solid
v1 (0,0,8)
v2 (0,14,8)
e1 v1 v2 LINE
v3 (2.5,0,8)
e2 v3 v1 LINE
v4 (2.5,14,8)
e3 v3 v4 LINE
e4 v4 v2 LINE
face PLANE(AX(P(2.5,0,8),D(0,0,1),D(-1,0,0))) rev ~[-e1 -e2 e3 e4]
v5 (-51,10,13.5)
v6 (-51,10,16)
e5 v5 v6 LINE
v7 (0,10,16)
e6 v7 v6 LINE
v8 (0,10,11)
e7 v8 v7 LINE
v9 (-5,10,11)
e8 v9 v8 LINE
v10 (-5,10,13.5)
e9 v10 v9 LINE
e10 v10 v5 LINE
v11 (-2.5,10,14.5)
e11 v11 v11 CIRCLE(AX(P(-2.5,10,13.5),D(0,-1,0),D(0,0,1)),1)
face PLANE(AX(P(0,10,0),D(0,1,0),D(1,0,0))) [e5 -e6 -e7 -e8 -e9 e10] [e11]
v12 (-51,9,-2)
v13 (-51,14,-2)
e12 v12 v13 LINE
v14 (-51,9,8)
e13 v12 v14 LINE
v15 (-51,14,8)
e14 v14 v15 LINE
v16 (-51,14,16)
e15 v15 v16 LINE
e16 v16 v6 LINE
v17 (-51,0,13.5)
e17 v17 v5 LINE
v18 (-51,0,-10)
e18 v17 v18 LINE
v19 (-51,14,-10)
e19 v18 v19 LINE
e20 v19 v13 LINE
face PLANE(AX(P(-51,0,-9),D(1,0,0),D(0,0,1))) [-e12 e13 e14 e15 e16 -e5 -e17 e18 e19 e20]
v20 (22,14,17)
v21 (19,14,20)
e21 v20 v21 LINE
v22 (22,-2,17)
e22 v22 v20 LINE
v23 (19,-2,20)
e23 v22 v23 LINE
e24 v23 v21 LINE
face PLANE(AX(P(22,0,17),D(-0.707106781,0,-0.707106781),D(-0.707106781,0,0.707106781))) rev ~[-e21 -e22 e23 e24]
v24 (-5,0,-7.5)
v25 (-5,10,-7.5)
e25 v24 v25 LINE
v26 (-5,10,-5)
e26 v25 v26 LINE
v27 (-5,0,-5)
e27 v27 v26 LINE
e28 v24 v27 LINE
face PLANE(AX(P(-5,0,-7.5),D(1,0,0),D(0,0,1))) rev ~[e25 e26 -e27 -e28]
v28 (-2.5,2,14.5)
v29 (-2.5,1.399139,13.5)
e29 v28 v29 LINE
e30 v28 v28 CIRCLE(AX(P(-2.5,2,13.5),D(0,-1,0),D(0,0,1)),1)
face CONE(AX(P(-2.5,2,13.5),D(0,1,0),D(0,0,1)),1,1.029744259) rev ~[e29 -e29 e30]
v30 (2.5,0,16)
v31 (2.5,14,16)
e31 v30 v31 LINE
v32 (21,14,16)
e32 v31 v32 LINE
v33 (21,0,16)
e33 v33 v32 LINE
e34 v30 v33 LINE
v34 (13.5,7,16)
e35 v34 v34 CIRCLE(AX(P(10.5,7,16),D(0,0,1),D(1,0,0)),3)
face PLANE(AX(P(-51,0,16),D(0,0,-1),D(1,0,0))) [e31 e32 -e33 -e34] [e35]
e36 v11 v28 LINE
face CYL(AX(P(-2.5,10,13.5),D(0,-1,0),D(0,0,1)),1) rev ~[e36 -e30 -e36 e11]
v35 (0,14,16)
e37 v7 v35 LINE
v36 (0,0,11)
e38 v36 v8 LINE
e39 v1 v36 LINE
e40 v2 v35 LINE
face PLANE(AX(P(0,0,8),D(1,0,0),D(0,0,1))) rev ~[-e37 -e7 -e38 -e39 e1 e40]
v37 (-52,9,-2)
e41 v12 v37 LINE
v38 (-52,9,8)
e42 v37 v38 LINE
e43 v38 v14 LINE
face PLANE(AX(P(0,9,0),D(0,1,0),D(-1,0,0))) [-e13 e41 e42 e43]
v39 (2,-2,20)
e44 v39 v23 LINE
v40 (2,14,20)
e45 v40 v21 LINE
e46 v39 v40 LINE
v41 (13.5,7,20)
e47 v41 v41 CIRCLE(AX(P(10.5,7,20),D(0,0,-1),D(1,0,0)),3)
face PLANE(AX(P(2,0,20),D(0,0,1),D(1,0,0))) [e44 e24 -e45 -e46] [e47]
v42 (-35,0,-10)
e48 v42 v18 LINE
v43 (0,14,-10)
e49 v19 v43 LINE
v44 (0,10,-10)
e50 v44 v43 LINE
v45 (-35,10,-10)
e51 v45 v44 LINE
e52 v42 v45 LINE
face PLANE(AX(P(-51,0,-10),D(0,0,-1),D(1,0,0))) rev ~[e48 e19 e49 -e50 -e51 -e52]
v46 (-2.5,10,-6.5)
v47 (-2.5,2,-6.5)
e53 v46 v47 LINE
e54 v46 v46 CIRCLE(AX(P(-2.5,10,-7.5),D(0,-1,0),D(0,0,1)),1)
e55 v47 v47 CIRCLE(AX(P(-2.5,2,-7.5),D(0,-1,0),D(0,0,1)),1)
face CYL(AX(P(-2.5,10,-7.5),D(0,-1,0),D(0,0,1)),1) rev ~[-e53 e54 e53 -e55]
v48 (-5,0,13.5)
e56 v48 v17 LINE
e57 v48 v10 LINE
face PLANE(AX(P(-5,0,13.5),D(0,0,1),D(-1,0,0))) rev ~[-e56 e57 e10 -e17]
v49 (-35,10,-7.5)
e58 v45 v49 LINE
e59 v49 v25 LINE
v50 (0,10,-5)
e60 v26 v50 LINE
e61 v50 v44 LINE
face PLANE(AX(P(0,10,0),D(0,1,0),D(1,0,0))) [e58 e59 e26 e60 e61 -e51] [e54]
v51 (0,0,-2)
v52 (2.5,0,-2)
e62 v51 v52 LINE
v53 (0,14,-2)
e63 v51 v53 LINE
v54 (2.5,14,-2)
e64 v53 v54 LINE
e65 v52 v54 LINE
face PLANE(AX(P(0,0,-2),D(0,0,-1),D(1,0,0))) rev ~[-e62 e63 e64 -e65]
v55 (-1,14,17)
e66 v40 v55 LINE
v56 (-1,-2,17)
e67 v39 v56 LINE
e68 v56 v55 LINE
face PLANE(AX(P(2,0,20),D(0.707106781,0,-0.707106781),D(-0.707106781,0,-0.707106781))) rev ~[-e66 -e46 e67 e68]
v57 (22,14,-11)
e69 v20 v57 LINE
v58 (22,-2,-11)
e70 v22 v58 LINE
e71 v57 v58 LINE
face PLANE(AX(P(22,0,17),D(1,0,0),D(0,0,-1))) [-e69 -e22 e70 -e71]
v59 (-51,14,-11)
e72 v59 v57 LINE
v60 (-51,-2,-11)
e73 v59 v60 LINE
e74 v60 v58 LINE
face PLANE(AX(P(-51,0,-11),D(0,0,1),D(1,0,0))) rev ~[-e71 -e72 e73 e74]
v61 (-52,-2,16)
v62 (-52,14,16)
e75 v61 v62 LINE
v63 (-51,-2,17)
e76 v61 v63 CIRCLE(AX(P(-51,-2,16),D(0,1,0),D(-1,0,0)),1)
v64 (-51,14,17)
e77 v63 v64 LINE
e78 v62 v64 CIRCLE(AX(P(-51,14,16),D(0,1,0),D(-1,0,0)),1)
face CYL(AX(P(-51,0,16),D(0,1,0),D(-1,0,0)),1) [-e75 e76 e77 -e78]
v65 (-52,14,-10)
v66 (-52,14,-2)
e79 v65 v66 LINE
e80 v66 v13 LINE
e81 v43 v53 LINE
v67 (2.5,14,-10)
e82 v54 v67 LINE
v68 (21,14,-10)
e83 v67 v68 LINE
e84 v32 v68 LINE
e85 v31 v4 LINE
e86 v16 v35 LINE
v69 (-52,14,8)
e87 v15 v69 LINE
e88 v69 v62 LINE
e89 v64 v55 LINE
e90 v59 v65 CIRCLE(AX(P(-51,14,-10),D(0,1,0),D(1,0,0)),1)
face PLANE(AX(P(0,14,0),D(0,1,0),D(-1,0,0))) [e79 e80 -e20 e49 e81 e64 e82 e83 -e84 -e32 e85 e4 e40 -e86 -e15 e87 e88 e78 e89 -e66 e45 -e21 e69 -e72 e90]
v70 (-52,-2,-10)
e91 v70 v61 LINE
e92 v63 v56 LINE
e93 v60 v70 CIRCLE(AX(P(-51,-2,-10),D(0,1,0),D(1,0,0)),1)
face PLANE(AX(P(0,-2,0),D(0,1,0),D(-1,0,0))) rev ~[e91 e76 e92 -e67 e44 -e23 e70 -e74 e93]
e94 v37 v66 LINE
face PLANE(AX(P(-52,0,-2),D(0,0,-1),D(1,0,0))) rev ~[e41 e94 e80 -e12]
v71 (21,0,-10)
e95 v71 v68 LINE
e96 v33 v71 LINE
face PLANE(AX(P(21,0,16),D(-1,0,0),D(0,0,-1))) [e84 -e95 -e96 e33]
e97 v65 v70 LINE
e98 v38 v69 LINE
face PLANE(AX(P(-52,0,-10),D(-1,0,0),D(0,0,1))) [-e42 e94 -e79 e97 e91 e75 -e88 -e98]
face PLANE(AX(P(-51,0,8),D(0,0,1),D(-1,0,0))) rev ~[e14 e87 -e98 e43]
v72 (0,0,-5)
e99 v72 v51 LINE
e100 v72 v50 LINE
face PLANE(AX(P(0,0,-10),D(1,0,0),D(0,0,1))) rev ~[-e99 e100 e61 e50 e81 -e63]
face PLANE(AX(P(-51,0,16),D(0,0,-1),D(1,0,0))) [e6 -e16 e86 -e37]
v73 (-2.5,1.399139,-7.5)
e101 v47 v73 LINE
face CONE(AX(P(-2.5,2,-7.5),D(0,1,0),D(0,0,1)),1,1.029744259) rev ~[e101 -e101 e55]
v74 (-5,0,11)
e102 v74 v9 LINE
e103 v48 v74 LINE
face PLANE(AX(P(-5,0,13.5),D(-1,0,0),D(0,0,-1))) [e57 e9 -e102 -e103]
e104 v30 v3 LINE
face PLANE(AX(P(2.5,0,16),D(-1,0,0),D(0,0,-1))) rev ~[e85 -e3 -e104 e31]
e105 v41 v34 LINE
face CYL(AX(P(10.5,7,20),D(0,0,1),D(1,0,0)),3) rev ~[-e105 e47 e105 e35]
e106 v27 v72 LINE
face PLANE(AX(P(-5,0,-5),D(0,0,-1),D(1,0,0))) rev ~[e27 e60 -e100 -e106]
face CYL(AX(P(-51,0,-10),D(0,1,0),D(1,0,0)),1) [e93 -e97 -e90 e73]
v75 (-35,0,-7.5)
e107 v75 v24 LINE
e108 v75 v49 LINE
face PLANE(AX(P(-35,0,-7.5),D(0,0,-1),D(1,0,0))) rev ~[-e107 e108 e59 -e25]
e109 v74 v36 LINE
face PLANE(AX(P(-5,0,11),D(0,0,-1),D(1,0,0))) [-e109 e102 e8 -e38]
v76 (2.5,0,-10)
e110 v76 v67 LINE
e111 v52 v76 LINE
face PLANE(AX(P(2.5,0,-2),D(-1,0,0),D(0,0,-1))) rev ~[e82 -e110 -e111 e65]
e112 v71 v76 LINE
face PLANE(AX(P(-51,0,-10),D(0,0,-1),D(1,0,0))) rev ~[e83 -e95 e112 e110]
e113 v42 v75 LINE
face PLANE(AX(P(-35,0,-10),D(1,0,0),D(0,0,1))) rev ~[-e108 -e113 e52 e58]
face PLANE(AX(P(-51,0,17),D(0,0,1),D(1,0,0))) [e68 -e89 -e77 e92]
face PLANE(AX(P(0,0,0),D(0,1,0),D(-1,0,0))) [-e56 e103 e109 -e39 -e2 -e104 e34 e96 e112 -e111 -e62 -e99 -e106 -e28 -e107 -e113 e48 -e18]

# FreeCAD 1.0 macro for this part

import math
import FreeCAD as App
import Part
import Sketcher

doc = App.newDocument("Part")
body = doc.addObject("PartDesign::Body", "Body")

# Sketch on XZ plane
sketch1 = doc.addObject("Sketcher::SketchObject", "Sketch")
body.addObject(sketch1)
sketch1.AttachmentSupport = (doc.XZ_Plane, [""])
sketch1.MapMode = "FlatFace"
sketch1.addGeometry([
    Part.LineSegment(App.Vector(-52, -10, 0), App.Vector(-52, 16, 0)),  # 0
    Part.ArcOfCircle(Part.Circle(App.Vector(-51, 16, 0), App.Vector(0, 0, 1), 1), math.radians(90), math.radians(180)),  # 1
    Part.LineSegment(App.Vector(-51, 17, 0), App.Vector(-1, 17, 0)),  # 2
    Part.LineSegment(App.Vector(-1, 17, 0), App.Vector(2, 20, 0)),  # 3
    Part.LineSegment(App.Vector(2, 20, 0), App.Vector(19, 20, 0)),  # 4
    Part.LineSegment(App.Vector(19, 20, 0), App.Vector(22, 17, 0)),  # 5
    Part.LineSegment(App.Vector(22, 17, 0), App.Vector(22, -11, 0)),  # 6
    Part.LineSegment(App.Vector(22, -11, 0), App.Vector(-51, -11, 0)),  # 7
    Part.ArcOfCircle(Part.Circle(App.Vector(-51, -10, 0), App.Vector(0, 0, 1), 1), math.radians(180), math.radians(270)),  # 8
], False)
sketch1.addConstraint([
    Sketcher.Constraint("Tangent", 0, 2, 1, 2),
    Sketcher.Constraint("Tangent", 1, 1, 2, 1),
    Sketcher.Constraint("Coincident", 2, 2, 3, 1),
    Sketcher.Constraint("Coincident", 3, 2, 4, 1),
    Sketcher.Constraint("Coincident", 4, 2, 5, 1),
    Sketcher.Constraint("Coincident", 5, 2, 6, 1),
    Sketcher.Constraint("Coincident", 6, 2, 7, 1),
    Sketcher.Constraint("Tangent", 7, 2, 8, 2),
    Sketcher.Constraint("Tangent", 8, 1, 0, 1),
    Sketcher.Constraint("Vertical", 0),
    Sketcher.Constraint("Horizontal", 2),
    Sketcher.Constraint("Horizontal", 4),
    Sketcher.Constraint("Vertical", 6),
    Sketcher.Constraint("Horizontal", 7),
    Sketcher.Constraint("Equal", 1, 8),
    Sketcher.Constraint("Perpendicular", 3, 5),
    Sketcher.Constraint("Horizontal", 2, 2, 5, 2),
    Sketcher.Constraint("Equal", 3, 5),
    Sketcher.Constraint("Radius", 1, 1.0),
    Sketcher.Constraint("DistanceX", 2, 1, 2, 2, 50.0),
    Sketcher.Constraint("DistanceX", 4, 1, 4, 2, 17.0),
    Sketcher.Constraint("DistanceX", 7, 2, 7, 1, 73.0),
    Sketcher.Constraint("DistanceY", 0, 1, 0, 2, 26.0),
    Sketcher.Constraint("DistanceX", 1, 3, -1, 1, 51.0),
    Sketcher.Constraint("DistanceY", -1, 1, 1, 3, 16.0),
])
pad1 = doc.addObject("PartDesign::Pad", "Pad")
body.addObject(pad1)
pad1.Profile = sketch1
pad1.Length = 2

# Sketch on XZ plane
sketch2 = doc.addObject("Sketcher::SketchObject", "Sketch001")
body.addObject(sketch2)
sketch2.AttachmentSupport = (doc.XZ_Plane, [""])
sketch2.MapMode = "FlatFace"
sketch2.addGeometry([
    Part.LineSegment(App.Vector(-52, -10, 0), App.Vector(-52, 16, 0)),  # 0
    Part.ArcOfCircle(Part.Circle(App.Vector(-51, 16, 0), App.Vector(0, 0, 1), 1), math.radians(90), math.radians(180)),  # 1
    Part.LineSegment(App.Vector(-51, 17, 0), App.Vector(-1, 17, 0)),  # 2
    Part.LineSegment(App.Vector(-1, 17, 0), App.Vector(2, 20, 0)),  # 3
    Part.LineSegment(App.Vector(2, 20, 0), App.Vector(19, 20, 0)),  # 4
    Part.LineSegment(App.Vector(19, 20, 0), App.Vector(22, 17, 0)),  # 5
    Part.LineSegment(App.Vector(22, 17, 0), App.Vector(22, -11, 0)),  # 6
    Part.LineSegment(App.Vector(22, -11, 0), App.Vector(-51, -11, 0)),  # 7
    Part.ArcOfCircle(Part.Circle(App.Vector(-51, -10, 0), App.Vector(0, 0, 1), 1), math.radians(180), math.radians(270)),  # 8
    Part.LineSegment(App.Vector(-51, -10, 0), App.Vector(21, -10, 0)),  # 9
    Part.LineSegment(App.Vector(21, -10, 0), App.Vector(21, 16, 0)),  # 10
    Part.LineSegment(App.Vector(21, 16, 0), App.Vector(-51, 16, 0)),  # 11
    Part.LineSegment(App.Vector(-51, 16, 0), App.Vector(-51, -10, 0)),  # 12
], False)
sketch2.addConstraint([
    Sketcher.Constraint("Tangent", 0, 2, 1, 2),
    Sketcher.Constraint("Tangent", 1, 1, 2, 1),
    Sketcher.Constraint("Coincident", 2, 2, 3, 1),
    Sketcher.Constraint("Coincident", 3, 2, 4, 1),
    Sketcher.Constraint("Coincident", 4, 2, 5, 1),
    Sketcher.Constraint("Coincident", 5, 2, 6, 1),
    Sketcher.Constraint("Coincident", 6, 2, 7, 1),
    Sketcher.Constraint("Tangent", 7, 2, 8, 2),
    Sketcher.Constraint("Tangent", 8, 1, 0, 1),
    Sketcher.Constraint("Coincident", 9, 2, 10, 1),
    Sketcher.Constraint("Coincident", 10, 2, 11, 1),
    Sketcher.Constraint("Coincident", 11, 2, 12, 1),
    Sketcher.Constraint("Coincident", 12, 2, 9, 1),
    Sketcher.Constraint("Vertical", 0),
    Sketcher.Constraint("Horizontal", 2),
    Sketcher.Constraint("Horizontal", 4),
    Sketcher.Constraint("Vertical", 6),
    Sketcher.Constraint("Horizontal", 7),
    Sketcher.Constraint("Horizontal", 9),
    Sketcher.Constraint("Vertical", 10),
    Sketcher.Constraint("Horizontal", 11),
    Sketcher.Constraint("Vertical", 12),
    Sketcher.Constraint("Coincident", 11, 2, 1, 3),
    Sketcher.Constraint("Coincident", 12, 2, 8, 3),
    Sketcher.Constraint("Perpendicular", 3, 5),
    Sketcher.Constraint("Horizontal", 2, 2, 5, 2),
    Sketcher.Constraint("Equal", 3, 5),
    Sketcher.Constraint("Radius", 1, 1.0),
    Sketcher.Constraint("DistanceX", 2, 1, 2, 2, 50.0),
    Sketcher.Constraint("DistanceX", 4, 1, 4, 2, 17.0),
    Sketcher.Constraint("DistanceX", 7, 2, 7, 1, 73.0),
    Sketcher.Constraint("DistanceX", 9, 1, 9, 2, 72.0),
    Sketcher.Constraint("DistanceY", 0, 1, 0, 2, 26.0),
    Sketcher.Constraint("DistanceX", 1, 3, -1, 1, 51.0),
    Sketcher.Constraint("DistanceY", -1, 1, 1, 3, 16.0),
])
pad2 = doc.addObject("PartDesign::Pad", "Pad001")
body.addObject(pad2)
pad2.Profile = sketch2
pad2.Length = 9
pad2.Reversed = True

# Sketch on XZ plane
sketch3 = doc.addObject("Sketcher::SketchObject", "Sketch002")
body.addObject(sketch3)
sketch3.AttachmentSupport = (doc.XZ_Plane, [""])
sketch3.MapMode = "FlatFace"
sketch3.addGeometry([
    Part.LineSegment(App.Vector(-51, -2, 0), App.Vector(-51, -10, 0)),  # 0
    Part.LineSegment(App.Vector(-51, -10, 0), App.Vector(21, -10, 0)),  # 1
    Part.LineSegment(App.Vector(21, -10, 0), App.Vector(21, 16, 0)),  # 2
    Part.LineSegment(App.Vector(21, 16, 0), App.Vector(-51, 16, 0)),  # 3
    Part.LineSegment(App.Vector(-51, 16, 0), App.Vector(-51, 8, 0)),  # 4
    Part.LineSegment(App.Vector(-51, 8, 0), App.Vector(-52, 8, 0)),  # 5
    Part.LineSegment(App.Vector(-52, 8, 0), App.Vector(-52, 16, 0)),  # 6
    Part.ArcOfCircle(Part.Circle(App.Vector(-51, 16, 0), App.Vector(0, 0, 1), 1), math.radians(90), math.radians(180)),  # 7
    Part.LineSegment(App.Vector(-51, 17, 0), App.Vector(-1, 17, 0)),  # 8
    Part.LineSegment(App.Vector(-1, 17, 0), App.Vector(2, 20, 0)),  # 9
    Part.LineSegment(App.Vector(2, 20, 0), App.Vector(19, 20, 0)),  # 10
    Part.LineSegment(App.Vector(19, 20, 0), App.Vector(22, 17, 0)),  # 11
    Part.LineSegment(App.Vector(22, 17, 0), App.Vector(22, -11, 0)),  # 12
    Part.LineSegment(App.Vector(22, -11, 0), App.Vector(-51, -11, 0)),  # 13
    Part.ArcOfCircle(Part.Circle(App.Vector(-51, -10, 0), App.Vector(0, 0, 1), 1), math.radians(180), math.radians(270)),  # 14
    Part.LineSegment(App.Vector(-52, -10, 0), App.Vector(-52, -2, 0)),  # 15
    Part.LineSegment(App.Vector(-52, -2, 0), App.Vector(-51, -2, 0)),  # 16
], False)
sketch3.addConstraint([
    Sketcher.Constraint("Coincident", 0, 2, 1, 1),
    Sketcher.Constraint("Coincident", 1, 2, 2, 1),
    Sketcher.Constraint("Coincident", 2, 2, 3, 1),
    Sketcher.Constraint("Coincident", 3, 2, 4, 1),
    Sketcher.Constraint("Coincident", 4, 2, 5, 1),
    Sketcher.Constraint("Coincident", 5, 2, 6, 1),
    Sketcher.Constraint("Tangent", 6, 2, 7, 2),
    Sketcher.Constraint("Tangent", 7, 1, 8, 1),
    Sketcher.Constraint("Coincident", 8, 2, 9, 1),
    Sketcher.Constraint("Coincident", 9, 2, 10, 1),
    Sketcher.Constraint("Coincident", 10, 2, 11, 1),
    Sketcher.Constraint("Coincident", 11, 2, 12, 1),
    Sketcher.Constraint("Coincident", 12, 2, 13, 1),
    Sketcher.Constraint("Tangent", 13, 2, 14, 2),
    Sketcher.Constraint("Tangent", 14, 1, 15, 1),
    Sketcher.Constraint("Coincident", 15, 2, 16, 1),
    Sketcher.Constraint("Coincident", 16, 2, 0, 1),
    Sketcher.Constraint("Vertical", 0),
    Sketcher.Constraint("Horizontal", 1),
    Sketcher.Constraint("Vertical", 2),
    Sketcher.Constraint("Horizontal", 3),
    Sketcher.Constraint("Vertical", 4),
    Sketcher.Constraint("Horizontal", 5),
    Sketcher.Constraint("Vertical", 6),
    Sketcher.Constraint("Horizontal", 8),
    Sketcher.Constraint("Horizontal", 10),
    Sketcher.Constraint("Vertical", 12),
    Sketcher.Constraint("Horizontal", 13),
    Sketcher.Constraint("Vertical", 15),
    Sketcher.Constraint("Horizontal", 16),
    Sketcher.Constraint("Coincident", 0, 2, 14, 3),
    Sketcher.Constraint("Coincident", 3, 2, 7, 3),
    Sketcher.Constraint("Equal", 7, 14),
    Sketcher.Constraint("Perpendicular", 9, 11),
    Sketcher.Constraint("Horizontal", 8, 2, 11, 2),
    Sketcher.Constraint("Vertical", 7, 3, 14, 3),
    Sketcher.Constraint("Equal", 0, 4),
    Sketcher.Constraint("Equal", 9, 11),
    Sketcher.Constraint("Radius", 7, 1.0),
    Sketcher.Constraint("DistanceX", 1, 1, 1, 2, 72.0),
    Sketcher.Constraint("DistanceX", 8, 1, 8, 2, 50.0),
    Sketcher.Constraint("DistanceX", 10, 1, 10, 2, 17.0),
    Sketcher.Constraint("DistanceX", 13, 2, 13, 1, 73.0),
    Sketcher.Constraint("DistanceY", 0, 2, 0, 1, 8.0),
    Sketcher.Constraint("DistanceY", 2, 1, 2, 2, 26.0),
    Sketcher.Constraint("DistanceX", 7, 3, -1, 1, 51.0),
    Sketcher.Constraint("DistanceY", -1, 1, 7, 3, 16.0),
])
pad3 = doc.addObject("PartDesign::Pad", "Pad002")
body.addObject(pad3)
pad3.Profile = sketch3
pad3.Length = 14
pad3.Reversed = True

# Sketch on XZ plane
sketch4 = doc.addObject("Sketcher::SketchObject", "Sketch003")
body.addObject(sketch4)
sketch4.AttachmentSupport = (doc.XZ_Plane, [""])
sketch4.MapMode = "FlatFace"
sketch4.addGeometry([
    Part.LineSegment(App.Vector(-35, -10, 0), App.Vector(-35, -7.5, 0)),  # 0
    Part.LineSegment(App.Vector(-35, -7.5, 0), App.Vector(-5, -7.5, 0)),  # 1
    Part.LineSegment(App.Vector(-5, -7.5, 0), App.Vector(-5, -5, 0)),  # 2
    Part.LineSegment(App.Vector(-5, -5, 0), App.Vector(0, -5, 0)),  # 3
    Part.LineSegment(App.Vector(0, -5, 0), App.Vector(0, -10, 0)),  # 4
    Part.LineSegment(App.Vector(0, -10, 0), App.Vector(-35, -10, 0)),  # 5
    Part.LineSegment(App.Vector(0, 16, 0), App.Vector(0, 11, 0)),  # 6
    Part.LineSegment(App.Vector(0, 11, 0), App.Vector(-5, 11, 0)),  # 7
    Part.LineSegment(App.Vector(-5, 11, 0), App.Vector(-5, 13.5, 0)),  # 8
    Part.LineSegment(App.Vector(-5, 13.5, 0), App.Vector(-51, 13.5, 0)),  # 9
    Part.LineSegment(App.Vector(-51, 13.5, 0), App.Vector(-51, 16, 0)),  # 10
    Part.LineSegment(App.Vector(-51, 16, 0), App.Vector(0, 16, 0)),  # 11
], False)
sketch4.addConstraint([
    Sketcher.Constraint("Coincident", 0, 2, 1, 1),
    Sketcher.Constraint("Coincident", 1, 2, 2, 1),
    Sketcher.Constraint("Coincident", 2, 2, 3, 1),
    Sketcher.Constraint("Coincident", 3, 2, 4, 1),
    Sketcher.Constraint("Coincident", 4, 2, 5, 1),
    Sketcher.Constraint("Coincident", 5, 2, 0, 1),
    Sketcher.Constraint("Coincident", 6, 2, 7, 1),
    Sketcher.Constraint("Coincident", 7, 2, 8, 1),
    Sketcher.Constraint("Coincident", 8, 2, 9, 1),
    Sketcher.Constraint("Coincident", 9, 2, 10, 1),
    Sketcher.Constraint("Coincident", 10, 2, 11, 1),
    Sketcher.Constraint("Coincident", 11, 2, 6, 1),
    Sketcher.Constraint("Vertical", 0),
    Sketcher.Constraint("Horizontal", 1),
    Sketcher.Constraint("Vertical", 2),
    Sketcher.Constraint("Horizontal", 3),
    Sketcher.Constraint("Vertical", 4),
    Sketcher.Constraint("Horizontal", 5),
    Sketcher.Constraint("Vertical", 6),
    Sketcher.Constraint("Horizontal", 7),
    Sketcher.Constraint("Vertical", 8),
    Sketcher.Constraint("Horizontal", 9),
    Sketcher.Constraint("Vertical", 10),
    Sketcher.Constraint("Horizontal", 11),
    Sketcher.Constraint("PointOnObject", 3, 2, -2),
    Sketcher.Constraint("PointOnObject", 6, 2, -2),
    Sketcher.Constraint("Vertical", 2, 2, 7, 2),
    Sketcher.Constraint("Equal", 0, 2),
    Sketcher.Constraint("Equal", 7, 4),
    Sketcher.Constraint("Equal", 4, 6),
    Sketcher.Constraint("Equal", 2, 8),
    Sketcher.Constraint("DistanceX", 3, 1, 3, 2, 5.0),
    Sketcher.Constraint("DistanceY", 2, 2, -1, 1, 5.0),
    Sketcher.Constraint("DistanceY", -1, 1, 10, 2, 16.0),
    Sketcher.Constraint("DistanceX", 9, 2, 0, 2, 16.0),
    Sketcher.Constraint("DistanceX", 1, 1, 1, 2, 30.0),
])
pad4 = doc.addObject("PartDesign::Pad", "Pad003")
body.addObject(pad4)
pad4.Profile = sketch4
pad4.Length = 10
pad4.Reversed = True

# Sketch on XZ plane
sketch5 = doc.addObject("Sketcher::SketchObject", "Sketch004")
body.addObject(sketch5)
sketch5.AttachmentSupport = (doc.XZ_Plane, [""])
sketch5.MapMode = "FlatFace"
sketch5.addGeometry([
    Part.LineSegment(App.Vector(0, 8, 0), App.Vector(0, 16, 0)),  # 0
    Part.LineSegment(App.Vector(0, 16, 0), App.Vector(2.5, 16, 0)),  # 1
    Part.LineSegment(App.Vector(2.5, 16, 0), App.Vector(2.5, 8, 0)),  # 2
    Part.LineSegment(App.Vector(2.5, 8, 0), App.Vector(0, 8, 0)),  # 3
    Part.LineSegment(App.Vector(0, -10, 0), App.Vector(0, -2, 0)),  # 4
    Part.LineSegment(App.Vector(0, -2, 0), App.Vector(2.5, -2, 0)),  # 5
    Part.LineSegment(App.Vector(2.5, -2, 0), App.Vector(2.5, -10, 0)),  # 6
    Part.LineSegment(App.Vector(2.5, -10, 0), App.Vector(0, -10, 0)),  # 7
], False)
sketch5.addConstraint([
    Sketcher.Constraint("Coincident", 0, 2, 1, 1),
    Sketcher.Constraint("Coincident", 1, 2, 2, 1),
    Sketcher.Constraint("Coincident", 2, 2, 3, 1),
    Sketcher.Constraint("Coincident", 3, 2, 0, 1),
    Sketcher.Constraint("Coincident", 4, 2, 5, 1),
    Sketcher.Constraint("Coincident", 5, 2, 6, 1),
    Sketcher.Constraint("Coincident", 6, 2, 7, 1),
    Sketcher.Constraint("Coincident", 7, 2, 4, 1),
    Sketcher.Constraint("Vertical", 0),
    Sketcher.Constraint("Horizontal", 1),
    Sketcher.Constraint("Vertical", 2),
    Sketcher.Constraint("Horizontal", 3),
    Sketcher.Constraint("Vertical", 4),
    Sketcher.Constraint("Horizontal", 5),
    Sketcher.Constraint("Vertical", 6),
    Sketcher.Constraint("Horizontal", 7),
    Sketcher.Constraint("PointOnObject", 0, 2, -2),
    Sketcher.Constraint("PointOnObject", 4, 2, -2),
    Sketcher.Constraint("Vertical", 2, 2, 5, 2),
    Sketcher.Constraint("Equal", 2, 4),
    Sketcher.Constraint("DistanceY", 0, 1, 0, 2, 8.0),
    Sketcher.Constraint("DistanceX", 1, 1, 1, 2, 2.5),
    Sketcher.Constraint("DistanceY", -1, 1, 2, 2, 8.0),
    Sketcher.Constraint("DistanceY", 4, 2, -1, 1, 2.0),
])
pad5 = doc.addObject("PartDesign::Pad", "Pad004")
body.addObject(pad5)
pad5.Profile = sketch5
pad5.Length = 14
pad5.Reversed = True

# Sketch on XY plane
sketch6 = doc.addObject("Sketcher::SketchObject", "Sketch005")
body.addObject(sketch6)
sketch6.AttachmentSupport = (doc.XY_Plane, [""])
sketch6.MapMode = "FlatFace"
sketch6.AttachmentOffset = App.Placement(App.Vector(0, 0, 20), App.Rotation())
sketch6.addGeometry(Part.Circle(App.Vector(10.5, 7, 0), App.Vector(0, 0, 1), 3), False)
sketch6.addConstraint([
    Sketcher.Constraint("Diameter", 0, 6.0),
    Sketcher.Constraint("DistanceY", -1, 1, 0, 3, 7.0),
    Sketcher.Constraint("DistanceX", -1, 1, 0, 3, 10.5),
])
pocket1 = doc.addObject("PartDesign::Pocket", "Pocket")
body.addObject(pocket1)
pocket1.Profile = sketch6
pocket1.Length = 14

# Sketch on XZ plane
sketch7 = doc.addObject("Sketcher::SketchObject", "Sketch006")
body.addObject(sketch7)
sketch7.AttachmentSupport = (doc.XZ_Plane, [""])
sketch7.MapMode = "FlatFace"
sketch7.AttachmentOffset = App.Placement(App.Vector(0, 0, -10), App.Rotation())
sketch7.addGeometry([
    Part.Circle(App.Vector(-2.5, -7.5, 0), App.Vector(0, 0, 1), 1),
    Part.Circle(App.Vector(-2.5, 13.5, 0), App.Vector(0, 0, 1), 1),
], False)
sketch7.addConstraint([
    Sketcher.Constraint("Equal", 0, 1),
    Sketcher.Constraint("Vertical", 0, 3, 1, 3),
    Sketcher.Constraint("Diameter", 0, 2.0),
    Sketcher.Constraint("DistanceY", 0, 3, 1, 3, 21.0),
    Sketcher.Constraint("DistanceX", 0, 3, -1, 1, 2.5),
    Sketcher.Constraint("DistanceY", 0, 3, -1, 1, 7.5),
])
doc.recompute()
hole = doc.addObject("PartDesign::Hole", "Hole")
body.addObject(hole)
hole.Profile = sketch7
hole.ThreadType = "None"
hole.Diameter = 2
hole.DepthType = "Dimension"
hole.Depth = 8
hole.DrillPoint = "Angled"
hole.DrillPointAngle = 118
hole.Reversed = True

doc.recompute()
